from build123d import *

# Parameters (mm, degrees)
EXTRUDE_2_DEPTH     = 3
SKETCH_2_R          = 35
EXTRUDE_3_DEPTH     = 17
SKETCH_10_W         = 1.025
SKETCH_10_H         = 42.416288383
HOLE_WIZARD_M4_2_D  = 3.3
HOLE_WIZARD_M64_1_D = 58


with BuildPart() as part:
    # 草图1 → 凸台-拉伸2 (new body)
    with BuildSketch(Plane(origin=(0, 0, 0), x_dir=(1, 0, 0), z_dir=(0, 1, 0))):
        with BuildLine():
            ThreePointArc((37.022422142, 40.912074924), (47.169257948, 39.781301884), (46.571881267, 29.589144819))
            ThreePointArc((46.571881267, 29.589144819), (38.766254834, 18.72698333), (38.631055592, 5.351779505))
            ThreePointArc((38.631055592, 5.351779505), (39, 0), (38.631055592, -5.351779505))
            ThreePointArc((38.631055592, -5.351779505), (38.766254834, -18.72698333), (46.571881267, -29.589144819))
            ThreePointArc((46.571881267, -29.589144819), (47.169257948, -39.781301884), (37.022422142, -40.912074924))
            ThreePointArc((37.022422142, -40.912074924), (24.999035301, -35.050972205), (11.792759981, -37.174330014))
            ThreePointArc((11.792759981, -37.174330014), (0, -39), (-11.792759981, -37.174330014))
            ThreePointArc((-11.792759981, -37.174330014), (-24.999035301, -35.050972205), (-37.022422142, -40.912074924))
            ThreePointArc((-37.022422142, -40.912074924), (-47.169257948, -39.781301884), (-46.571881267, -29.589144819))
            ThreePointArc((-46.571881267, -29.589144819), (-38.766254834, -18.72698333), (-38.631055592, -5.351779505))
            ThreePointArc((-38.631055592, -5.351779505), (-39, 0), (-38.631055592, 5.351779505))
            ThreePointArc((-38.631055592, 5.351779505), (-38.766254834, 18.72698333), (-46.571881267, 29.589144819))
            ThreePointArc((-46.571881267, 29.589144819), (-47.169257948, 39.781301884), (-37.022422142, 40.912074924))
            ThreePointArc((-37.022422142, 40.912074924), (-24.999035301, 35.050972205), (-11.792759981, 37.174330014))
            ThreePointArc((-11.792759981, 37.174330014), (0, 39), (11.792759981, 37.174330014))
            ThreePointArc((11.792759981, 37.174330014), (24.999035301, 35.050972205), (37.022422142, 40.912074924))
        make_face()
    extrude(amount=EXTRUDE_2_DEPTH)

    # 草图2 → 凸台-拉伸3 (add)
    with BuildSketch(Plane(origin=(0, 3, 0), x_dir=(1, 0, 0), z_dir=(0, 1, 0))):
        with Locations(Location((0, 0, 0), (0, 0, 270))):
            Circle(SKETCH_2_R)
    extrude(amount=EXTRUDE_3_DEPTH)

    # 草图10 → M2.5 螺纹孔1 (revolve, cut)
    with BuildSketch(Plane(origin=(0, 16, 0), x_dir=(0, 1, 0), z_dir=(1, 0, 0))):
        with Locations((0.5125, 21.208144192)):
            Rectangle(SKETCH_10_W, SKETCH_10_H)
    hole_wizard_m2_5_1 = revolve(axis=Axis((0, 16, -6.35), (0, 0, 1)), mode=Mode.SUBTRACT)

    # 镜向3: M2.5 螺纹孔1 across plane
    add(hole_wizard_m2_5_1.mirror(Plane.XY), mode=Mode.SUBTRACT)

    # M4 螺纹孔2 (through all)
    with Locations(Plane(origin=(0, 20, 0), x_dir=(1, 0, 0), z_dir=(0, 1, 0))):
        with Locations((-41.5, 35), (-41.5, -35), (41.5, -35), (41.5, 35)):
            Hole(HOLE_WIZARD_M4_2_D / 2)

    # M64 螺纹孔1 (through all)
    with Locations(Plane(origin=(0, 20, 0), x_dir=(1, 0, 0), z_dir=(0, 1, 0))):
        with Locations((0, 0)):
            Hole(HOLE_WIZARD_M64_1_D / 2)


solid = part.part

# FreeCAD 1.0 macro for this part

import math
import FreeCAD as App
import Part
import Sketcher
from FreeCAD import Vector
Q = App.Units.Quantity


def add_polygon(sketch, points):
    """Adds a closed chain of lines whose ends are joined by coincident constraints."""
    first, n = sketch.GeometryCount, len(points)
    for a, b in zip(points, points[1:] + points[:1]):
        sketch.addGeometry(Part.LineSegment(App.Vector(*a, 0), App.Vector(*b, 0)), False)
    for i in range(n):
        sketch.addConstraint(Sketcher.Constraint("Coincident", first + i, 2, first + (i + 1) % n, 1))

doc = App.newDocument("Part")
body = doc.addObject("PartDesign::Body", "Body")

# Sketch on XZ plane
sketch1 = body.newObject("Sketcher::SketchObject", "Sketch")
sketch1.AttachmentSupport = (doc.getObject("XZ_Plane"), [""])
sketch1.MapMode = "FlatFace"
sketch1.addGeometry([
    Part.ArcOfCircle(Part.Circle(Vector(42, -35, 0), Vector(0, 0, 1), 7), math.radians(-127), math.radians(47)),  # 0
    Part.ArcOfCircle(Part.Circle(Vector(22, -57, 0), Vector(0, 0, 1), 22), math.radians(46), math.radians(117)),  # 1
    Part.ArcOfCircle(Part.Circle(Vector(0, 0, 0), Vector(0, 0, 1), 39), math.radians(-108), math.radians(-72)),  # 2
    Part.ArcOfCircle(Part.Circle(Vector(-22, -57, 0), Vector(0, 0, 1), 22), math.radians(63), math.radians(134)),  # 3
    Part.ArcOfCircle(Part.Circle(Vector(-42, -35, 0), Vector(0, 0, 1), 7), math.radians(133), math.radians(307)),  # 4
    Part.ArcOfCircle(Part.Circle(Vector(-60, -12, 0), Vector(0, 0, 1), 22), math.radians(-53), math.radians(17)),  # 5
    Part.ArcOfCircle(Part.Circle(Vector(0, 0, 0), Vector(0, 0, 1), 39), math.radians(172.11), math.radians(187.89)),  # 6
    Part.ArcOfCircle(Part.Circle(Vector(-60, 12, 0), Vector(0, 0, 1), 22), math.radians(-17), math.radians(53)),  # 7
    Part.ArcOfCircle(Part.Circle(Vector(-42, 35, 0), Vector(0, 0, 1), 7), math.radians(53), math.radians(227)),  # 8
    Part.ArcOfCircle(Part.Circle(Vector(-22, 57, 0), Vector(0, 0, 1), 22), math.radians(-134), math.radians(-63)),  # 9
    Part.ArcOfCircle(Part.Circle(Vector(0, 0, 0), Vector(0, 0, 1), 39), math.radians(72), math.radians(108)),  # 10
    Part.ArcOfCircle(Part.Circle(Vector(22, 57, 0), Vector(0, 0, 1), 22), math.radians(-117), math.radians(-46)),  # 11
    Part.ArcOfCircle(Part.Circle(Vector(42, 35, 0), Vector(0, 0, 1), 7), math.radians(-47), math.radians(127)),  # 12
    Part.ArcOfCircle(Part.Circle(Vector(60, 12, 0), Vector(0, 0, 1), 22), math.radians(127), math.radians(197)),  # 13
    Part.ArcOfCircle(Part.Circle(Vector(0, 0, 0), Vector(0, 0, 1), 39), math.radians(-7.89), math.radians(7.89)),  # 14
    Part.ArcOfCircle(Part.Circle(Vector(60, -12, 0), Vector(0, 0, 1), 22), math.radians(163), math.radians(233)),  # 15
], False)
sketch1.addConstraint([
    Sketcher.Constraint("Coincident", 0, 1, 1, 1),
    Sketcher.Constraint("Coincident", 1, 2, 2, 2),
    Sketcher.Constraint("Coincident", 2, 1, 3, 1),
    Sketcher.Constraint("Coincident", 3, 2, 4, 2),
    Sketcher.Constraint("Coincident", 4, 1, 5, 1),
    Sketcher.Constraint("Coincident", 5, 2, 6, 2),
    Sketcher.Constraint("Coincident", 6, 1, 7, 1),
    Sketcher.Constraint("Coincident", 7, 2, 8, 2),
    Sketcher.Constraint("Coincident", 8, 1, 9, 1),
    Sketcher.Constraint("Coincident", 9, 2, 10, 2),
    Sketcher.Constraint("Coincident", 10, 1, 11, 1),
    Sketcher.Constraint("Coincident", 11, 2, 12, 2),
    Sketcher.Constraint("Coincident", 12, 1, 13, 1),
    Sketcher.Constraint("Coincident", 13, 2, 14, 2),
    Sketcher.Constraint("Coincident", 14, 1, 15, 1),
    Sketcher.Constraint("Coincident", 15, 2, 0, 2),
    Sketcher.Constraint("Coincident", 2, 3, -1, 1),
    Sketcher.Constraint("Coincident", 6, 3, -1, 1),
    Sketcher.Constraint("Coincident", 10, 3, -1, 1),
    Sketcher.Constraint("Coincident", 14, 3, -1, 1),
    Sketcher.Constraint("Equal", 1, 3),
    Sketcher.Constraint("Equal", 0, 4),
    Sketcher.Constraint("Equal", 3, 5),
    Sketcher.Constraint("Equal", 2, 6),
    Sketcher.Constraint("Equal", 5, 7),
    Sketcher.Constraint("Equal", 4, 8),
    Sketcher.Constraint("Equal", 7, 9),
    Sketcher.Constraint("Equal", 6, 10),
    Sketcher.Constraint("Equal", 9, 11),
    Sketcher.Constraint("Equal", 8, 12),
    Sketcher.Constraint("Equal", 11, 13),
    Sketcher.Constraint("Equal", 10, 14),
    Sketcher.Constraint("Equal", 13, 15),
    Sketcher.Constraint("Symmetric", 0, 3, 8, 3, -1, 1),
    Sketcher.Constraint("Symmetric", 1, 3, 9, 3, -1, 1),
    Sketcher.Constraint("Symmetric", 3, 3, 11, 3, -1, 1),
    Sketcher.Constraint("Symmetric", 4, 3, 12, 3, -1, 1),
    Sketcher.Constraint("Symmetric", 5, 3, 13, 3, -1, 1),
    Sketcher.Constraint("Symmetric", 7, 3, 15, 3, -1, 1),
    Sketcher.Constraint("Symmetric", 1, 3, 3, 3, -2),
    Sketcher.Constraint("Symmetric", 0, 3, 4, 3, -2),
    Sketcher.Constraint("Symmetric", 7, 3, 13, 3, -2),
    Sketcher.Constraint("Radius", 2, Q("39 mm")),
    Sketcher.Constraint("DistanceY", 0, 3, -1, 1, Q("35 mm")),
    Sketcher.Constraint("DistanceX", 4, 3, 0, 3, Q("83 mm")),
    Sketcher.Constraint("Radius", 0, Q("7.416288 mm")),
    Sketcher.Constraint("Radius", 1, Q("22.165891 mm")),
    Sketcher.Constraint("DistanceX", 3, 3, 1, 2, Q("33.543399 mm")),
    Sketcher.Constraint("DistanceY", 3, 3, 4, 1, Q("27.388402 mm")),
    Sketcher.Constraint("DistanceX", -1, 1, 1, 3, Q("21.750639 mm")),
    Sketcher.Constraint("DistanceY", 5, 2, -1, 1, Q("5.35178 mm")),
])
pad1 = body.newObject("PartDesign::Pad", "Pad")
pad1.Profile = sketch1
pad1.Length = 3
pad1.Reversed = True

# Sketch on XZ plane
sketch2 = body.newObject("Sketcher::SketchObject", "Sketch001")
sketch2.AttachmentSupport = (doc.getObject("XZ_Plane"), [""])
sketch2.MapMode = "FlatFace"
sketch2.AttachmentOffset = App.Placement(Vector(0, 0, -3), App.Rotation())
sketch2.addGeometry(Part.Circle(Vector(0, 0, 0), Vector(0, 0, 1), 35), False)
sketch2.addConstraint([
    Sketcher.Constraint("Coincident", 0, 3, -1, 1),
    Sketcher.Constraint("Diameter", 0, Q("70 mm")),
])
pad2 = body.newObject("PartDesign::Pad", "Pad001")
pad2.Profile = sketch2
pad2.Length = 17
pad2.Reversed = True

# Sketch on YZ plane
sketch3 = body.newObject("Sketcher::SketchObject", "Sketch002")
sketch3.AttachmentSupport = (doc.getObject("YZ_Plane"), [""])
sketch3.MapMode = "FlatFace"
add_polygon(sketch3, [(16, 42.4), (16, 0), (17, 0), (17, 42.4)])  # lines 0-3
sketch3.addGeometry(Part.LineSegment(Vector(16, 0, 0), Vector(16, 42.4, 0)), True)  # axis
sketch3.addConstraint([
    Sketcher.Constraint("Vertical", 0),
    Sketcher.Constraint("Horizontal", 1),
    Sketcher.Constraint("Vertical", 2),
    Sketcher.Constraint("Horizontal", 3),
    Sketcher.Constraint("Vertical", 4),
    Sketcher.Constraint("Coincident", 4, 1, 0, 2),
    Sketcher.Constraint("PointOnObject", 0, 2, -1),
    Sketcher.Constraint("Horizontal", 2, 2, 4, 2),
    Sketcher.Constraint("DistanceX", -1, 1, 0, 2, Q("16 mm")),
    Sketcher.Constraint("DistanceX", 1, 1, 1, 2, Q("1.025 mm")),
    Sketcher.Constraint("DistanceY", 0, 2, 0, 1, Q("42.416288 mm")),
])
groove = body.newObject("PartDesign::Groove", "Groove")
groove.Profile = sketch3
groove.ReferenceAxis = (sketch3, ["Axis0"])
groove.Angle = 360
doc.recompute()

mirrored = body.newObject("PartDesign::Mirrored", "Mirrored")
mirrored.Originals = [groove]
mirrored.MirrorPlane = (doc.getObject("XY_Plane"), [""])
body.Tip = mirrored

# Sketch on XZ plane
sketch4 = body.newObject("Sketcher::SketchObject", "Sketch003")
sketch4.AttachmentSupport = (doc.getObject("XZ_Plane"), [""])
sketch4.MapMode = "FlatFace"
sketch4.AttachmentOffset = App.Placement(Vector(0, 0, -20), App.Rotation())
sketch4.addGeometry([
    Part.Circle(Vector(-41.5, -35, 0), Vector(0, 0, 1), 1.6),
    Part.Circle(Vector(-41.5, 35, 0), Vector(0, 0, 1), 1.6),
    Part.Circle(Vector(41.5, 35, 0), Vector(0, 0, 1), 1.6),
    Part.Circle(Vector(41.5, -35, 0), Vector(0, 0, 1), 1.6),
], False)
sketch4.addConstraint([
    Sketcher.Constraint("Equal", 0, 1),
    Sketcher.Constraint("Equal", 1, 2),
    Sketcher.Constraint("Equal", 2, 3),
    Sketcher.Constraint("Symmetric", 0, 3, 2, 3, -1, 1),
    Sketcher.Constraint("Symmetric", 1, 3, 3, 3, -1, 1),
    Sketcher.Constraint("Symmetric", 1, 3, 2, 3, -2),
    Sketcher.Constraint("Diameter", 0, Q("3.3 mm")),
    Sketcher.Constraint("DistanceY", 0, 3, -1, 1, Q("35 mm")),
    Sketcher.Constraint("DistanceX", 1, 3, 2, 3, Q("83 mm")),
])
doc.recompute()
hole = body.newObject("PartDesign::Hole", "Hole")
hole.Profile = sketch4
hole.ThreadType = "None"
hole.Diameter = 3.3
hole.DepthType = "ThroughAll"
hole.Reversed = True

# Sketch on XZ plane
sketch5 = body.newObject("Sketcher::SketchObject", "Sketch004")
sketch5.AttachmentSupport = (doc.getObject("XZ_Plane"), [""])
sketch5.MapMode = "FlatFace"
sketch5.AttachmentOffset = App.Placement(Vector(0, 0, -20), App.Rotation())
sketch5.addGeometry(Part.Circle(Vector(0, 0, 0), Vector(0, 0, 1), 29), False)
sketch5.addConstraint([
    Sketcher.Constraint("Coincident", 0, 3, -1, 1),
    Sketcher.Constraint("Diameter", 0, Q("58 mm")),
])
doc.recompute()
hole2 = body.newObject("PartDesign::Hole", "Hole001")
hole2.Profile = sketch5
hole2.ThreadType = "None"
hole2.Diameter = 58
hole2.DepthType = "ThroughAll"
hole2.Reversed = True

doc.recompute()
